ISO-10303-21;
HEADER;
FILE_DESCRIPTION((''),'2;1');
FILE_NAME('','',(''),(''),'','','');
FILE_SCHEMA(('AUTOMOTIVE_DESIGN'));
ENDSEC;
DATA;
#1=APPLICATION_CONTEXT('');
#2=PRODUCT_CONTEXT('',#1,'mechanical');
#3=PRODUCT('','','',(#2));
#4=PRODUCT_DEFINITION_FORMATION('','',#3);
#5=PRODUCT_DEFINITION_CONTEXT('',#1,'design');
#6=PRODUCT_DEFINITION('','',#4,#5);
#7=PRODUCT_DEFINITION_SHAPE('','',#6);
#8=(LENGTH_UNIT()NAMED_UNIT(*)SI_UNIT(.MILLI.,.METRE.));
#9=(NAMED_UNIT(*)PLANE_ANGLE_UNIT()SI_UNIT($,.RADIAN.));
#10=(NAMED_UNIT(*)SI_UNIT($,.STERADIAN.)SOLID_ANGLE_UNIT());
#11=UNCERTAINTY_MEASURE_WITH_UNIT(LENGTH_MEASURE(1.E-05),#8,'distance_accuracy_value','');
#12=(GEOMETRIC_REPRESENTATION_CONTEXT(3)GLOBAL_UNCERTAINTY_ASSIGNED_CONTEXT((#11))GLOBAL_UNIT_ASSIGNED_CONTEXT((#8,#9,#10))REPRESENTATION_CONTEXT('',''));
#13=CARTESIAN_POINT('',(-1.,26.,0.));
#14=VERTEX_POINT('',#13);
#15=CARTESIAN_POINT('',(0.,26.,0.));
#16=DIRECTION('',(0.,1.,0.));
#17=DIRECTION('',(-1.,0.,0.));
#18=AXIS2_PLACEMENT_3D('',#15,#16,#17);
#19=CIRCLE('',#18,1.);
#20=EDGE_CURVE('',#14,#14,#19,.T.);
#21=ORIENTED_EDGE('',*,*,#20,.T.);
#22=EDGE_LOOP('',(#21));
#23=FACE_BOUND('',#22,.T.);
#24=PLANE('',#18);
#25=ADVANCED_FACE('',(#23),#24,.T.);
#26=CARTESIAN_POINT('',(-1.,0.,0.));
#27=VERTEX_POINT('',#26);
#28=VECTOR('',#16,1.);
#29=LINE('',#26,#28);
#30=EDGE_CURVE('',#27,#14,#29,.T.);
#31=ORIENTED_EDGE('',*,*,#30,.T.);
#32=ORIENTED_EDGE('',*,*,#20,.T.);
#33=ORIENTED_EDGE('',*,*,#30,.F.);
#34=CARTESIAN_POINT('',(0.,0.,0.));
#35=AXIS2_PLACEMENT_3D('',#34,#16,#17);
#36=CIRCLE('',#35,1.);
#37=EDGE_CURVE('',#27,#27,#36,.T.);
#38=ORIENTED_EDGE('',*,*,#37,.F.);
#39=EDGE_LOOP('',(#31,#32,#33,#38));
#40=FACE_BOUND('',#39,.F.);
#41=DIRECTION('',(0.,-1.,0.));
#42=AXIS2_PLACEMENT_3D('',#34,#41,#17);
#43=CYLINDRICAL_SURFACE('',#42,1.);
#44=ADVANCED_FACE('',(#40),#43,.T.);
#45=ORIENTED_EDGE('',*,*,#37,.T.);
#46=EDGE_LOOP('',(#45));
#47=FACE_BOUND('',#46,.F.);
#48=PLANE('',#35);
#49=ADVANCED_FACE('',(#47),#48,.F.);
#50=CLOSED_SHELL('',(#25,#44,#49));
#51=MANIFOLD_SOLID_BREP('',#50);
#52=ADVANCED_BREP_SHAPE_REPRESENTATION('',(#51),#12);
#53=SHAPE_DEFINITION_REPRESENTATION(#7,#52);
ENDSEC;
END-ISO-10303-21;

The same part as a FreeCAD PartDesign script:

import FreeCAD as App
import Part
import Sketcher

doc = App.newDocument("Part")
params = doc.addObject("Spreadsheet::Sheet", "Params")
for row, (alias, value) in enumerate([
    ("sketch1_diameter", "2 mm"),
    ("pad1_length", "26 mm"),
], start=1):
    params.set(f"A{row}", alias)
    params.set(f"B{row}", "=" + value)
    params.setAlias(f"B{row}", alias)

body = doc.addObject("PartDesign::Body", "Body")

sketch1 = body.newObject("Sketcher::SketchObject", "Sketch")
sketch1.AttachmentSupport = (doc.getObject("XZ_Plane"), [""])
sketch1.MapMode = "FlatFace"
sketch1.addGeometry(Part.Circle(App.Vector(0, 0, 0), App.Vector(0, 0, 1), 1), False)
sketch1.addConstraint(Sketcher.Constraint("Coincident", 0, 3, -1, 1))
sketch1.addConstraint(Sketcher.Constraint("Diameter", 0, 2.0))
sketch1.setExpression("Constraints[1]", "Params.sketch1_diameter")
pad1 = body.newObject("PartDesign::Pad", "Pad")
pad1.Profile = sketch1
pad1.setExpression("Length", "Params.pad1_length")
pad1.Reversed = True

doc.recompute()
